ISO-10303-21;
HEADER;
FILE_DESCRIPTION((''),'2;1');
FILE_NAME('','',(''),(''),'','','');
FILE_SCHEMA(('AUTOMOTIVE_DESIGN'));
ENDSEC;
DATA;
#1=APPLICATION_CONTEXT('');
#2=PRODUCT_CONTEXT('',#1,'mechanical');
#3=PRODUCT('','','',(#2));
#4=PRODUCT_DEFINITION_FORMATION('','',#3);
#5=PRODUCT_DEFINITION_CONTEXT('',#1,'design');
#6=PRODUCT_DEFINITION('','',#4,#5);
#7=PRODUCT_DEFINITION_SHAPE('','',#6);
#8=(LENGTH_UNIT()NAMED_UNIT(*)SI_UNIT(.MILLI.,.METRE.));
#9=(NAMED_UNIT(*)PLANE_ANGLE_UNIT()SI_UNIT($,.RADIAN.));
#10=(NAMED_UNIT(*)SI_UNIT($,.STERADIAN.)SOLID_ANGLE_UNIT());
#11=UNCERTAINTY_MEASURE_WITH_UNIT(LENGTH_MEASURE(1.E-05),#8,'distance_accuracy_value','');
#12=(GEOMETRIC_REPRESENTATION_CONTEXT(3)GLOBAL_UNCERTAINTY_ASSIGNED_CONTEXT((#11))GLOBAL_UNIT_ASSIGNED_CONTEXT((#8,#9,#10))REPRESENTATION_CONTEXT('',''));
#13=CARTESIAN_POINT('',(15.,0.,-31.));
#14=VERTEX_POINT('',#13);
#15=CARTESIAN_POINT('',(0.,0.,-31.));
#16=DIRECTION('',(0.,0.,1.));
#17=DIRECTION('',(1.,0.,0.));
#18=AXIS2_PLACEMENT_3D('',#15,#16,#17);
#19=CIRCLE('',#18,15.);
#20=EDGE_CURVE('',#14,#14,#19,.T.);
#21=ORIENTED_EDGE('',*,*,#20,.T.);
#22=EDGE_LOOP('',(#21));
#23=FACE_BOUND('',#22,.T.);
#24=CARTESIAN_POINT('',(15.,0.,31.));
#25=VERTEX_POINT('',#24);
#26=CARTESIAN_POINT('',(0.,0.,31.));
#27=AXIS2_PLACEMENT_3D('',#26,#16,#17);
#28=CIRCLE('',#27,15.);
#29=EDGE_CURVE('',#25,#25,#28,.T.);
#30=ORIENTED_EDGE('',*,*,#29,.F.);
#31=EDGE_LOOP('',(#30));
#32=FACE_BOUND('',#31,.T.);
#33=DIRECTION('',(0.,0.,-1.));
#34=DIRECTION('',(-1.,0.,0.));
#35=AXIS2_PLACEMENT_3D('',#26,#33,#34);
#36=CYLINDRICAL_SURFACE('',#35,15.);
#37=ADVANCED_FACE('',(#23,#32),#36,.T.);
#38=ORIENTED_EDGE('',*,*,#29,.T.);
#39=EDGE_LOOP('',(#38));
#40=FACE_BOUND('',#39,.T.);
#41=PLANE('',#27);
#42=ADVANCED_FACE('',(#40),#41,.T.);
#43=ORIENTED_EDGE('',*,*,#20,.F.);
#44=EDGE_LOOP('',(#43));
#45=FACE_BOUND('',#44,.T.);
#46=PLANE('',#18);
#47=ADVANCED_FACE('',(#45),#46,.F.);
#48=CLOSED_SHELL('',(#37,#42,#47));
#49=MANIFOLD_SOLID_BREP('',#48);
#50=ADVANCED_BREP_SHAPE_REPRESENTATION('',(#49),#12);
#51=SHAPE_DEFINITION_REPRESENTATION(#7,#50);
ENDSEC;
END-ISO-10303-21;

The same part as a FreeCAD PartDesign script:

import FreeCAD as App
import Part
import Sketcher

doc = App.newDocument("Part")
body = doc.addObject("PartDesign::Body", "Body")

sketch1 = body.newObject("Sketcher::SketchObject", "Sketch")
sketch1.AttachmentSupport = (doc.getObject("XY_Plane"), [""])
sketch1.MapMode = "FlatFace"
sketch1.addGeometry(Part.Circle(App.Vector(0, 0, 0), App.Vector(0, 0, 1), 15), False)
sketch1.addConstraint([
    Sketcher.Constraint("Coincident", 0, 3, -1, 1),
    Sketcher.Constraint("Diameter", 0, 30.0),
])
pad1 = body.newObject("PartDesign::Pad", "Pad")
pad1.Profile = sketch1
pad1.Length = 62
pad1.Midplane = True

doc.recompute()
